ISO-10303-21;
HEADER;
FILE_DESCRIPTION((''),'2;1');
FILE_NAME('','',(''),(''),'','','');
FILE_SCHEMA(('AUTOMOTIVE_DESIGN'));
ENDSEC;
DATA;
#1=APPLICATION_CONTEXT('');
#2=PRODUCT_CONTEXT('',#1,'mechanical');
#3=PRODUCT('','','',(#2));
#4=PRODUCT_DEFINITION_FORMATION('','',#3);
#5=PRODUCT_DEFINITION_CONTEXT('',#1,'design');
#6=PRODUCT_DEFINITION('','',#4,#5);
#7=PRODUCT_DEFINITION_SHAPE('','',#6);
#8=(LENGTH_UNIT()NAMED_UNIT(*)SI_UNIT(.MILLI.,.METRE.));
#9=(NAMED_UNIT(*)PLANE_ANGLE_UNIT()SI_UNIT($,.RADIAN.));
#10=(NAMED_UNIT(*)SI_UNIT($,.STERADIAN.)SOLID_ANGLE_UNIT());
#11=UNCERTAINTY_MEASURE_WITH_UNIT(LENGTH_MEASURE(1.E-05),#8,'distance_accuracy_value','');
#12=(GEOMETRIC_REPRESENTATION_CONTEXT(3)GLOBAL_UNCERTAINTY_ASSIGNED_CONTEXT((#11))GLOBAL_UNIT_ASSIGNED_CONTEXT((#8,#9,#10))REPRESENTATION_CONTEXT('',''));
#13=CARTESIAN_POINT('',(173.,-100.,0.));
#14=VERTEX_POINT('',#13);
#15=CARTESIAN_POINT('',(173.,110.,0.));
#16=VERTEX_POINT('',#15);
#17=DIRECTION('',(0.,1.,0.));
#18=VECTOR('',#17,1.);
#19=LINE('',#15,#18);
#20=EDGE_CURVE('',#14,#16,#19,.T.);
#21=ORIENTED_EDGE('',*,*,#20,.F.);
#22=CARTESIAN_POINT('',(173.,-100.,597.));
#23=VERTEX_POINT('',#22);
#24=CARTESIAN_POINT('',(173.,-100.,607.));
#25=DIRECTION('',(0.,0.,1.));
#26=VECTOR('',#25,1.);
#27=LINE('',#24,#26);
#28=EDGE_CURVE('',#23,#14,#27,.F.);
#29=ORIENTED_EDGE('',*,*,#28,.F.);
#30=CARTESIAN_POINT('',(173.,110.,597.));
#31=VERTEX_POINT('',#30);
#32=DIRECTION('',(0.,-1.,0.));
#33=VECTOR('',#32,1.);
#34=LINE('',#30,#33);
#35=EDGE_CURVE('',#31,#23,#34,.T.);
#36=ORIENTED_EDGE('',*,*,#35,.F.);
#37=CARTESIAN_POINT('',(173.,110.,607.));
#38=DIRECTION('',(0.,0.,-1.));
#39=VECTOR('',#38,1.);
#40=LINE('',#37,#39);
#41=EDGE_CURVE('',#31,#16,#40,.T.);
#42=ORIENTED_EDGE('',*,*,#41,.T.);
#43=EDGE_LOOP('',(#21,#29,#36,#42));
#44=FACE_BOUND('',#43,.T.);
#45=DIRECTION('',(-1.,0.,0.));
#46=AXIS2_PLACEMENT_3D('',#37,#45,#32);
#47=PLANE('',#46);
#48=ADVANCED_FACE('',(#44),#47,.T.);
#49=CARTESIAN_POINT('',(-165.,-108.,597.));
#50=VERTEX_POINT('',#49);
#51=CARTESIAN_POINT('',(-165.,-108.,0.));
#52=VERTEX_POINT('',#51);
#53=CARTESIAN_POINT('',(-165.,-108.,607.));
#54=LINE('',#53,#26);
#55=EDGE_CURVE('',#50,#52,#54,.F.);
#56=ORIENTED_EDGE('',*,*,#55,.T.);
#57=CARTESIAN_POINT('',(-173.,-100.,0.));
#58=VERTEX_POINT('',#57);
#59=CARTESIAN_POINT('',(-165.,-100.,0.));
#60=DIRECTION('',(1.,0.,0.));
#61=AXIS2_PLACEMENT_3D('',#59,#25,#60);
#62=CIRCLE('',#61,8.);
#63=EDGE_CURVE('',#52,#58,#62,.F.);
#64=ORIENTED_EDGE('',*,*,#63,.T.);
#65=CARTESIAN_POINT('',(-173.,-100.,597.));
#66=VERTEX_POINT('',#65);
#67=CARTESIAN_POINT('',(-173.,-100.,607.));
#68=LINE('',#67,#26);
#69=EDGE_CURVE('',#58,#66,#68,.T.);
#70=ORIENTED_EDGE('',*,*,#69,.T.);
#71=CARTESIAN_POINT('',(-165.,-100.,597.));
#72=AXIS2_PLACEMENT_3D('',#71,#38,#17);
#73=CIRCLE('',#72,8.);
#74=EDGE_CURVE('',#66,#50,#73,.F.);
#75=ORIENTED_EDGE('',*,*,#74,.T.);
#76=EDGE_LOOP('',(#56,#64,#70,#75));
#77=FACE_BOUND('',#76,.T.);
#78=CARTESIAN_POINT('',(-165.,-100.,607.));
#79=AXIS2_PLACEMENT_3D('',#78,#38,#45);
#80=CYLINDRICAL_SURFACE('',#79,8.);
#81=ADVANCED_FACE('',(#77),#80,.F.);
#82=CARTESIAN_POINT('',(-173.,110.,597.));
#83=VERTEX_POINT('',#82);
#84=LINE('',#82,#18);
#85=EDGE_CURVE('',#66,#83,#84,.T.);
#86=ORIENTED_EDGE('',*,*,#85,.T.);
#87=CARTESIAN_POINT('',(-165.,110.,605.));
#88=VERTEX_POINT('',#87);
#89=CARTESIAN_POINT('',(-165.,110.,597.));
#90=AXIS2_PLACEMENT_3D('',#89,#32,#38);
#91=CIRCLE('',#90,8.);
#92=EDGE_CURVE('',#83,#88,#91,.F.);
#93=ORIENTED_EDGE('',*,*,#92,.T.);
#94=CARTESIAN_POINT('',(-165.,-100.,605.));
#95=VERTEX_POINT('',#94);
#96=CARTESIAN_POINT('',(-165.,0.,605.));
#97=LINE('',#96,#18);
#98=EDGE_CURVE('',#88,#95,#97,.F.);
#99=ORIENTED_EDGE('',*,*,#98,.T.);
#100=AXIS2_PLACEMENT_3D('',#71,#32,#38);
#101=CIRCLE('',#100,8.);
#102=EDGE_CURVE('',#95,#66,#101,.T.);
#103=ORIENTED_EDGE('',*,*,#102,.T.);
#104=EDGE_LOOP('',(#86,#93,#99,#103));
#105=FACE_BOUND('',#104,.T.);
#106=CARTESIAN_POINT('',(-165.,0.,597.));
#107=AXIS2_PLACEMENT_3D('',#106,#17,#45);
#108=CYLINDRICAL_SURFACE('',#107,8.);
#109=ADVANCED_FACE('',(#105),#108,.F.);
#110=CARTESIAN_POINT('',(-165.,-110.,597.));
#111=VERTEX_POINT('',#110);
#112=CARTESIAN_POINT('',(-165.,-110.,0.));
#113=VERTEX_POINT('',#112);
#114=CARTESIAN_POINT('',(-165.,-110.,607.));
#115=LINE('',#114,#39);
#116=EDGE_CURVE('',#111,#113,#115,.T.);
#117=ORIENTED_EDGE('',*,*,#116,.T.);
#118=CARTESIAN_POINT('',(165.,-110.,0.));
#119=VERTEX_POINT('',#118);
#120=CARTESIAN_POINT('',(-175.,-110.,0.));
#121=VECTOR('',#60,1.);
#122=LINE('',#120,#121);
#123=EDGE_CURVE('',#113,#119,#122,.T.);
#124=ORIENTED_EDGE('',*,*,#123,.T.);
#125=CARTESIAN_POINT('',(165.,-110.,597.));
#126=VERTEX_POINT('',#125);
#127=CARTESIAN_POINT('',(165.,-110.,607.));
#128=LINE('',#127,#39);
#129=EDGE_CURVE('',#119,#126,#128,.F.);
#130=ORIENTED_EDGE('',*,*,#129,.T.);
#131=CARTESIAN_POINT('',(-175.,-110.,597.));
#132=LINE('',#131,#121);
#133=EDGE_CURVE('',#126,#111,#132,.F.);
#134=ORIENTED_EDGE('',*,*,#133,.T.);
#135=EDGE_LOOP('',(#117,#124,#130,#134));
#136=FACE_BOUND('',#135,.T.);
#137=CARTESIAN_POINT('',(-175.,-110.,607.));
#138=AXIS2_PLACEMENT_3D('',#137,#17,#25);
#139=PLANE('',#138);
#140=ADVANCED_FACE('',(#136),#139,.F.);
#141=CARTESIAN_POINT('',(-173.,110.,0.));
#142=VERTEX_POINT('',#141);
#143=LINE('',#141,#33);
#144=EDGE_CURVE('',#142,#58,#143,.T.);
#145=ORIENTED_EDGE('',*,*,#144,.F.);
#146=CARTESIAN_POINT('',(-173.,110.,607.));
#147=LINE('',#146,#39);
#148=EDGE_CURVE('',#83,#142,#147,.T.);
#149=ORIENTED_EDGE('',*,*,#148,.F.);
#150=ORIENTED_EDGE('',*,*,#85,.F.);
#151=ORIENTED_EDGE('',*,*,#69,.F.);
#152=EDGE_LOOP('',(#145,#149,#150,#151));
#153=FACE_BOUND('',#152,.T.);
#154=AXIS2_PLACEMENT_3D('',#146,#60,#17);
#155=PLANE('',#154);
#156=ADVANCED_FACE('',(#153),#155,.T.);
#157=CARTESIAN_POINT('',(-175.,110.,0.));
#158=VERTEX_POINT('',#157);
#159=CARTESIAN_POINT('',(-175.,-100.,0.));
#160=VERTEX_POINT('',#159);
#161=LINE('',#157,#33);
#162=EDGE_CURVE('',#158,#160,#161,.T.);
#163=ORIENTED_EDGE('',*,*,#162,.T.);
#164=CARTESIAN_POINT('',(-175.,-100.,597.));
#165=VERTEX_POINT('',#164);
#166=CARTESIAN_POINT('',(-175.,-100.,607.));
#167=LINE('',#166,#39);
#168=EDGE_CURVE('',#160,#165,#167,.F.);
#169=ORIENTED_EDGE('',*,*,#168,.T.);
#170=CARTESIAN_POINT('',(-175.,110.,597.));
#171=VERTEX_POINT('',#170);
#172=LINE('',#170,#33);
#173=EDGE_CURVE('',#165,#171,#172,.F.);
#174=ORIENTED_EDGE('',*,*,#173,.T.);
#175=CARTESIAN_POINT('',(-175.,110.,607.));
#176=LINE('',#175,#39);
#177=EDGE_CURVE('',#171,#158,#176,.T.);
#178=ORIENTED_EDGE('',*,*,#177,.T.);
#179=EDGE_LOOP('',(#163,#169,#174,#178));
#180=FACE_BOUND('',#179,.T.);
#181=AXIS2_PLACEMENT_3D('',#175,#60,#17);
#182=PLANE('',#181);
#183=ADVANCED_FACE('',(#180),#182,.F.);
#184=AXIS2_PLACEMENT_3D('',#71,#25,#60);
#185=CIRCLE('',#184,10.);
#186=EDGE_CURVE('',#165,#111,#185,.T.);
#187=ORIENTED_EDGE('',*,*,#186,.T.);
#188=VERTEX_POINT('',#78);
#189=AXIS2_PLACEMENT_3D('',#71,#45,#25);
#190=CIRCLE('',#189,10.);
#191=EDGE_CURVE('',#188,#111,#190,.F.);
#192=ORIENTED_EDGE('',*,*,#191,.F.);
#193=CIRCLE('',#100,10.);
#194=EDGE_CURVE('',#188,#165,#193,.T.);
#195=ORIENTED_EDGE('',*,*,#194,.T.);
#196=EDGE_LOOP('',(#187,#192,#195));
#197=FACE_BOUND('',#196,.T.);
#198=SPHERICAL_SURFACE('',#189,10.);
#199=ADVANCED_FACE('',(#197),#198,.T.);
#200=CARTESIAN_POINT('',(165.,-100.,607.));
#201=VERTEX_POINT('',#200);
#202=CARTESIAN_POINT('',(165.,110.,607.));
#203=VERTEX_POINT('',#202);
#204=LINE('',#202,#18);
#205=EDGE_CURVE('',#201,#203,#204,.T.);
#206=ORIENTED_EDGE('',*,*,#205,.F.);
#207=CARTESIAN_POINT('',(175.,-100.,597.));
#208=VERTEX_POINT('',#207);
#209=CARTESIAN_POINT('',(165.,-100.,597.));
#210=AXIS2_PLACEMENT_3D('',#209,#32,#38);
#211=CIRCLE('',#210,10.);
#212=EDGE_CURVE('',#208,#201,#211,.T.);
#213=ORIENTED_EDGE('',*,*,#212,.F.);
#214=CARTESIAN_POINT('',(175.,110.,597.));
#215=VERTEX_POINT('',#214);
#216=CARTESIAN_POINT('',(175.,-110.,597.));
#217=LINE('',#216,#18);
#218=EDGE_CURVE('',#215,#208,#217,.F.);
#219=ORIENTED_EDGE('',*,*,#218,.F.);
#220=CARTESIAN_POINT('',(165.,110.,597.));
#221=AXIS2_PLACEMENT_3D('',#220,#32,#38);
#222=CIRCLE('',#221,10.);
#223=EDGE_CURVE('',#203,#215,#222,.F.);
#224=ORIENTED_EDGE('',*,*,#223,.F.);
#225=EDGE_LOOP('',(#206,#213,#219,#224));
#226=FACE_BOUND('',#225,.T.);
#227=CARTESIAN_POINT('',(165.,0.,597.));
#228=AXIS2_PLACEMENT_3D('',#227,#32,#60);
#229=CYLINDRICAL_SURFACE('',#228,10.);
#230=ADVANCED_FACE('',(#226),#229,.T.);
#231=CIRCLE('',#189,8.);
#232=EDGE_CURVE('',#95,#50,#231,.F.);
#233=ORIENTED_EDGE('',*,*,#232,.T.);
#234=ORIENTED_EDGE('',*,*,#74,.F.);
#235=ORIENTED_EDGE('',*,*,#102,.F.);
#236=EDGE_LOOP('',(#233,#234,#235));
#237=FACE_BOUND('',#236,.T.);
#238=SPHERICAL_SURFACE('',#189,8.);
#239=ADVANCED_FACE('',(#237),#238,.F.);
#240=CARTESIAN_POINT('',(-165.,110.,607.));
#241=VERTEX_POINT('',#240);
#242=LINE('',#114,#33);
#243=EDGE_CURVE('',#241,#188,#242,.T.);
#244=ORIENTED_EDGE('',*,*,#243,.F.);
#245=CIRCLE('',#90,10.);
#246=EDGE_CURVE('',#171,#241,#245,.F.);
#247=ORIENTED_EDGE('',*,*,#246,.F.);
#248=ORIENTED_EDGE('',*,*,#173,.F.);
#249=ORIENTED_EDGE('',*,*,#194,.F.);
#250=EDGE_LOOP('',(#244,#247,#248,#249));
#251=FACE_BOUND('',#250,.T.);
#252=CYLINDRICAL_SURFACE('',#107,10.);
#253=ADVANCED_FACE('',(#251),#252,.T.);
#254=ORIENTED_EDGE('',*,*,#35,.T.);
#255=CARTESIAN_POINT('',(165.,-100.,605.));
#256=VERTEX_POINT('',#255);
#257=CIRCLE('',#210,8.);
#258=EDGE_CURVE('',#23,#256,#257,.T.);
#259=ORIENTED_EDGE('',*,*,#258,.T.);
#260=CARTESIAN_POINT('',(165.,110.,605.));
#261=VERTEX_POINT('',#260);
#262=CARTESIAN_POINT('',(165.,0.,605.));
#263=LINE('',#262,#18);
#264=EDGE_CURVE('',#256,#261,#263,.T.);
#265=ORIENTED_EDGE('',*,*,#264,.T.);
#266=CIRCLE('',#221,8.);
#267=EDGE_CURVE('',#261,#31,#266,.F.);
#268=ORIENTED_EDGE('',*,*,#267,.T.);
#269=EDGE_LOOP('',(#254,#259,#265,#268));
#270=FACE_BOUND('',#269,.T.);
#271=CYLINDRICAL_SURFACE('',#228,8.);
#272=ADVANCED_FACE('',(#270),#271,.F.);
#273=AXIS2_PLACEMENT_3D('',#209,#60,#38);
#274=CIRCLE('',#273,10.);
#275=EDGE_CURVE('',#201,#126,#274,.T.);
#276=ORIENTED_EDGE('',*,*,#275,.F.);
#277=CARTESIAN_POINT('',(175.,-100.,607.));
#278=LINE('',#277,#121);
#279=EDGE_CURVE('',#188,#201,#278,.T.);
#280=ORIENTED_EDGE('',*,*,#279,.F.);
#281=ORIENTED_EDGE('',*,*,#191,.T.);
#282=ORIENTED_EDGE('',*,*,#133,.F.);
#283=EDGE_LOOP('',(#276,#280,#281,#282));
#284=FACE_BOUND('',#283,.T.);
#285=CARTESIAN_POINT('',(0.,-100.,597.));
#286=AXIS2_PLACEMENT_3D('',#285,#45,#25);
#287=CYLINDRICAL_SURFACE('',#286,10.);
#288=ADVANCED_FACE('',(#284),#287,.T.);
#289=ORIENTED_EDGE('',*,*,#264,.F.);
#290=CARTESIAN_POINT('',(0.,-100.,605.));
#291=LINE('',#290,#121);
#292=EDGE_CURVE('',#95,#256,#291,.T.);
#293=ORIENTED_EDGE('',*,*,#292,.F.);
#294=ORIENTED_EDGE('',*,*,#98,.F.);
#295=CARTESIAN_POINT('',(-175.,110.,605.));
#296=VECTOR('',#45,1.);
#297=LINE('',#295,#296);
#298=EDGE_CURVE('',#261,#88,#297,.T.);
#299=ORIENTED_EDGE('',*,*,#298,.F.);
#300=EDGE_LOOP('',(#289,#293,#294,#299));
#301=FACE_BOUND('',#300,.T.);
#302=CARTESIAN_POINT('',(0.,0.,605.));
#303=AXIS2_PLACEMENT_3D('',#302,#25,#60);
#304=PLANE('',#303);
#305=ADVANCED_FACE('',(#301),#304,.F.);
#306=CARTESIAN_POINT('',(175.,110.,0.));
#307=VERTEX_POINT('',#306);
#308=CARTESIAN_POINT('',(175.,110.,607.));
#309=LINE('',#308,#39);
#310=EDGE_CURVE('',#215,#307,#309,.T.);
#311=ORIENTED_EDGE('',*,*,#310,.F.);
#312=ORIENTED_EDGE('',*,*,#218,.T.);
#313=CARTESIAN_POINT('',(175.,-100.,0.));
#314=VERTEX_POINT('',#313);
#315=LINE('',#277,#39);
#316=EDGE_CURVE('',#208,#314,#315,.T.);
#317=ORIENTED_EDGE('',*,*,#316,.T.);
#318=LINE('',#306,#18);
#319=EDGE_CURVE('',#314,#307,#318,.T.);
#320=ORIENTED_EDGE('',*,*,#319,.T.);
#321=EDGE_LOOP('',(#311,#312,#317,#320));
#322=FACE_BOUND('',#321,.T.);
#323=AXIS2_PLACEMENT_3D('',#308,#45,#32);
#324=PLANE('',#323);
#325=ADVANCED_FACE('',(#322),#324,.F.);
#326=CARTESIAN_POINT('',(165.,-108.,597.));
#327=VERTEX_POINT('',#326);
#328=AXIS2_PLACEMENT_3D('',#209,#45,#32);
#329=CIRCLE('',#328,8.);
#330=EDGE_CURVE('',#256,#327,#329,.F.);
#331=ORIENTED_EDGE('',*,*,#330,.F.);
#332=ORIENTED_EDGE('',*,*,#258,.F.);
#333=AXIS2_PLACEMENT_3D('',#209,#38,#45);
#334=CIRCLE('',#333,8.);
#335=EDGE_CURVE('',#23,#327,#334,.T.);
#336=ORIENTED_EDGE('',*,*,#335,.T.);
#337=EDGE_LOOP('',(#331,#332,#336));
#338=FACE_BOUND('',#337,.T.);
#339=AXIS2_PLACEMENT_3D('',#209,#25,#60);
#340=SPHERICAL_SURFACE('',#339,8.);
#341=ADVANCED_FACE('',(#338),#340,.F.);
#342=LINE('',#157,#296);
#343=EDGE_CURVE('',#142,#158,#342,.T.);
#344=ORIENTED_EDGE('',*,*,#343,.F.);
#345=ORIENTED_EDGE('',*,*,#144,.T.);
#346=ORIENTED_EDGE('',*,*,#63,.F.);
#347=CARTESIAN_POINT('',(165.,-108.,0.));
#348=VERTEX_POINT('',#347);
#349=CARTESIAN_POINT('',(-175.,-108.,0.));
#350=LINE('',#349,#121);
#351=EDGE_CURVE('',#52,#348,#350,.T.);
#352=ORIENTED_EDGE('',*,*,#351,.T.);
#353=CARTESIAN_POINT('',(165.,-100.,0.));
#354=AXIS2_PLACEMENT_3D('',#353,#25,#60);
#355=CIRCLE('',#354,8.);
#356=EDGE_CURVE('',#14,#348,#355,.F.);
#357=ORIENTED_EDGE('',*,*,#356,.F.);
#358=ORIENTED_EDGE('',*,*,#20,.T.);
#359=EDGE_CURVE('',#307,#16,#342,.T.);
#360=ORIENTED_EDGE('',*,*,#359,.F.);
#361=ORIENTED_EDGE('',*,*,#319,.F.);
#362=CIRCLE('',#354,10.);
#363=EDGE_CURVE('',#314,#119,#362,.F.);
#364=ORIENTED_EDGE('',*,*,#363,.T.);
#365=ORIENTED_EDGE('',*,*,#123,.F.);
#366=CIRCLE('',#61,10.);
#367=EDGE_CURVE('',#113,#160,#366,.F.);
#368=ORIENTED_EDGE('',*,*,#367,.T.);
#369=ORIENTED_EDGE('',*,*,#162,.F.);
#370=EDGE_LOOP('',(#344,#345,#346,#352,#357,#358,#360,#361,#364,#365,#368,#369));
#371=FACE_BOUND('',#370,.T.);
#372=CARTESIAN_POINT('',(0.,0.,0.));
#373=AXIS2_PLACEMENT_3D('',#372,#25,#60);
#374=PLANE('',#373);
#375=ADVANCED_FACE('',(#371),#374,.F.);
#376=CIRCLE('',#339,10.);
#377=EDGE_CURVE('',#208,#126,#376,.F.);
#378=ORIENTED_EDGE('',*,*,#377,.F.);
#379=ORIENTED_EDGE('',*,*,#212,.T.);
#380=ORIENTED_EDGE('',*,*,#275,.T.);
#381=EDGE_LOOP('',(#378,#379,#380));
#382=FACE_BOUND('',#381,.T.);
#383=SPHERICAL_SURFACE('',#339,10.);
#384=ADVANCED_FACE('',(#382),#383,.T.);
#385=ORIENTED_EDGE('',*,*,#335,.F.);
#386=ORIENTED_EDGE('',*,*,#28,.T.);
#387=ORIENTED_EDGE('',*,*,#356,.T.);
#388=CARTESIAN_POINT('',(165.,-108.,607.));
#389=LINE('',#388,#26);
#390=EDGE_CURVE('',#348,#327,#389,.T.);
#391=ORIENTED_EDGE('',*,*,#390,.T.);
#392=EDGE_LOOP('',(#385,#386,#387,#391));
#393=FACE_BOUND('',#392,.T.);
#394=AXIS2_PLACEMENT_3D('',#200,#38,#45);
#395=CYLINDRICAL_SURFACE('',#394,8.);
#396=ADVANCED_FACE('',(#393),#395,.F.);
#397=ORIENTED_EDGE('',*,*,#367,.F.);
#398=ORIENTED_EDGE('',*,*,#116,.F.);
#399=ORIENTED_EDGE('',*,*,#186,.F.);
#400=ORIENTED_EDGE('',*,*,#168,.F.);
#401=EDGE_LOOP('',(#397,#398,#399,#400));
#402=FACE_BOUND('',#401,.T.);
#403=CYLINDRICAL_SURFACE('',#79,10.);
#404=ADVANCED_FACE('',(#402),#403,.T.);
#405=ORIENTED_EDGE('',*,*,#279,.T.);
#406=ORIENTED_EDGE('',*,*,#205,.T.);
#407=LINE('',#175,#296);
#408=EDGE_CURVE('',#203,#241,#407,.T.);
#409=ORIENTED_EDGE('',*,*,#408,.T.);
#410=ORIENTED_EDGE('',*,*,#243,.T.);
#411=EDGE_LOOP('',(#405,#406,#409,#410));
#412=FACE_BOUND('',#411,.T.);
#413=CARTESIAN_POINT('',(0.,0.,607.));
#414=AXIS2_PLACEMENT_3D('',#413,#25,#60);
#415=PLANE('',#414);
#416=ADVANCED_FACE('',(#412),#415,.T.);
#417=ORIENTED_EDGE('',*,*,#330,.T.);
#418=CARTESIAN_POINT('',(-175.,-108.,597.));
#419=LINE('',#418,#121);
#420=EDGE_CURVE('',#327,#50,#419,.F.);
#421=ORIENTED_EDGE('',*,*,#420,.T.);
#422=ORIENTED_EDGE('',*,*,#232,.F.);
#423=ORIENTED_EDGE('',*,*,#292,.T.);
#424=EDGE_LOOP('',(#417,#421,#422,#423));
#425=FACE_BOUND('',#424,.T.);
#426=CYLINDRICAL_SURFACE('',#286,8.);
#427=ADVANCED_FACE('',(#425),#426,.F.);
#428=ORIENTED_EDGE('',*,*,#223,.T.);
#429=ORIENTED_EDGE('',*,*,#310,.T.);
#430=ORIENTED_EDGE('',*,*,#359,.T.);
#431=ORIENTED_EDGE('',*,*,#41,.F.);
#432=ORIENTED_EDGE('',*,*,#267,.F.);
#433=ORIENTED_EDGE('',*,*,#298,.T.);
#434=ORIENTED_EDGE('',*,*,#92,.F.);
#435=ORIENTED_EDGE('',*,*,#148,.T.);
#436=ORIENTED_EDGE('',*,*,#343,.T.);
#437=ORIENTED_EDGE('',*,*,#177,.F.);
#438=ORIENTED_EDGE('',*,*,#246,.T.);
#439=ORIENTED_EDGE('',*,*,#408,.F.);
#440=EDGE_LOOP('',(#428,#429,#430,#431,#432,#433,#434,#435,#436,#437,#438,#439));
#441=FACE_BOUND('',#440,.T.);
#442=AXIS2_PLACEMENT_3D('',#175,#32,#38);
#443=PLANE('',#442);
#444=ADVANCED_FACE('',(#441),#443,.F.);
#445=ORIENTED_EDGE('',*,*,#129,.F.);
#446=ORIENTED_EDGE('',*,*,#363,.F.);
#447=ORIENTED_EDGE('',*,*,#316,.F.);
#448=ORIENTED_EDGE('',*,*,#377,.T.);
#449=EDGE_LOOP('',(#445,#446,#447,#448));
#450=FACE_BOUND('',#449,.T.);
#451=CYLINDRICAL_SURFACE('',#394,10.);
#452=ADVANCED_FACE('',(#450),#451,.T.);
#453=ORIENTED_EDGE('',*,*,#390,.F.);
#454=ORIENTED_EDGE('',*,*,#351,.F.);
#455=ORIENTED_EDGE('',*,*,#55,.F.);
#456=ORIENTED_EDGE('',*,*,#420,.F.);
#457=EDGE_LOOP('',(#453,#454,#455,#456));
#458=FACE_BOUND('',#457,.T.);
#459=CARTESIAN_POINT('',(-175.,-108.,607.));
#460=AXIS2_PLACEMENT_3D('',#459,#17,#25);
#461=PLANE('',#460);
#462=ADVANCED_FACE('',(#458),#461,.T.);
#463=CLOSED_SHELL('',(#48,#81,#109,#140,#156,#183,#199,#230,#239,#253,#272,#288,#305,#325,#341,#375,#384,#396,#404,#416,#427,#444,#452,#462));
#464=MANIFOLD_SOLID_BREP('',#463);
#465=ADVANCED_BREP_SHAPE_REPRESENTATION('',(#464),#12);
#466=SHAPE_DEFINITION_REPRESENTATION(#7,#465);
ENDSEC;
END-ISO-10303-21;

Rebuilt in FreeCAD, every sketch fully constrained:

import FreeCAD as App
import Part
import Sketcher

V = App.Vector
Q = App.Units.Quantity


def edges_at(feature, points):
    """Names of the edges that pass closest to the given points."""
    edges = feature.Shape.Edges
    near = lambda p: min(range(len(edges)), key=lambda i: edges[i].distToShape(Part.Vertex(*p))[0])
    return sorted({f"Edge{near(p) + 1}" for p in points})


def faces_at(feature, points):
    """Names of the faces that lie closest to the given points."""
    faces = feature.Shape.Faces
    near = lambda p: min(range(len(faces)), key=lambda i: faces[i].distToShape(Part.Vertex(*p))[0])
    return sorted({f"Face{near(p) + 1}" for p in points})


def add_polygon(sketch, points):
    """Adds a closed chain of lines whose ends are joined by coincident constraints."""
    first, n = sketch.GeometryCount, len(points)
    for a, b in zip(points, points[1:] + points[:1]):
        sketch.addGeometry(Part.LineSegment(App.Vector(*a, 0), App.Vector(*b, 0)), False)
    for i in range(n):
        sketch.addConstraint(Sketcher.Constraint("Coincident", first + i, 2, first + (i + 1) % n, 1))

doc = App.newDocument("Part")
params = doc.addObject("Spreadsheet::Sheet", "Params")
for row, (alias, value) in enumerate([
    ("sketch1_width", "350 mm"),
    ("sketch1_height", "220 mm"),
    ("pad1_length", "607 mm"),
    ("fillet_radius", "10 mm"),
    ("thickness_wall", "2 mm"),
], start=1):
    params.set(f"A{row}", alias)
    params.set(f"B{row}", "=" + value)
    params.setAlias(f"B{row}", alias)

body = doc.addObject("PartDesign::Body", "Body")

# Sketch on XY plane
sketch1 = body.newObject("Sketcher::SketchObject", "Sketch")
sketch1.AttachmentSupport = (doc.getObject("XY_Plane"), [""])
sketch1.MapMode = "FlatFace"
add_polygon(sketch1, [(-175, 110), (-175, -110), (175, -110), (175, 110)])  # lines 0-3
sketch1.addConstraint([
    Sketcher.Constraint("Vertical", 0),
    Sketcher.Constraint("Horizontal", 1),
    Sketcher.Constraint("Vertical", 2),
    Sketcher.Constraint("Horizontal", 3),
    Sketcher.Constraint("Symmetric", 0, 2, 2, 2, -1, 1),
    Sketcher.Constraint("DistanceX", 1, 1, 1, 2, Q("350 mm")),
    Sketcher.Constraint("DistanceY", 0, 2, 0, 1, Q("220 mm")),
])
sketch1.setExpression("Constraints[9]", "Params.sketch1_width")
sketch1.setExpression("Constraints[10]", "Params.sketch1_height")
pad1 = body.newObject("PartDesign::Pad", "Pad")
pad1.Profile = sketch1
pad1.setExpression("Length", "Params.pad1_length")
doc.recompute()

fillet = body.newObject("PartDesign::Fillet", "Fillet")
fillet.Base = (pad1, edges_at(pad1, [
    (-175, 0, 607),
    (0, -110, 607),
    (175, 0, 607),
    (175, -110, 303.5),
    (-175, -110, 303.5),
]))
fillet.setExpression("Radius", "Params.fillet_radius")
doc.recompute()

thickness = body.newObject("PartDesign::Thickness", "Thickness")
thickness.Base = (fillet, faces_at(fillet, [(0, 0, 0), (0, 110, 303.5)]))
thickness.setExpression("Value", "Params.thickness_wall")
thickness.Reversed = True
thickness.Join = "Intersection"

doc.recompute()
